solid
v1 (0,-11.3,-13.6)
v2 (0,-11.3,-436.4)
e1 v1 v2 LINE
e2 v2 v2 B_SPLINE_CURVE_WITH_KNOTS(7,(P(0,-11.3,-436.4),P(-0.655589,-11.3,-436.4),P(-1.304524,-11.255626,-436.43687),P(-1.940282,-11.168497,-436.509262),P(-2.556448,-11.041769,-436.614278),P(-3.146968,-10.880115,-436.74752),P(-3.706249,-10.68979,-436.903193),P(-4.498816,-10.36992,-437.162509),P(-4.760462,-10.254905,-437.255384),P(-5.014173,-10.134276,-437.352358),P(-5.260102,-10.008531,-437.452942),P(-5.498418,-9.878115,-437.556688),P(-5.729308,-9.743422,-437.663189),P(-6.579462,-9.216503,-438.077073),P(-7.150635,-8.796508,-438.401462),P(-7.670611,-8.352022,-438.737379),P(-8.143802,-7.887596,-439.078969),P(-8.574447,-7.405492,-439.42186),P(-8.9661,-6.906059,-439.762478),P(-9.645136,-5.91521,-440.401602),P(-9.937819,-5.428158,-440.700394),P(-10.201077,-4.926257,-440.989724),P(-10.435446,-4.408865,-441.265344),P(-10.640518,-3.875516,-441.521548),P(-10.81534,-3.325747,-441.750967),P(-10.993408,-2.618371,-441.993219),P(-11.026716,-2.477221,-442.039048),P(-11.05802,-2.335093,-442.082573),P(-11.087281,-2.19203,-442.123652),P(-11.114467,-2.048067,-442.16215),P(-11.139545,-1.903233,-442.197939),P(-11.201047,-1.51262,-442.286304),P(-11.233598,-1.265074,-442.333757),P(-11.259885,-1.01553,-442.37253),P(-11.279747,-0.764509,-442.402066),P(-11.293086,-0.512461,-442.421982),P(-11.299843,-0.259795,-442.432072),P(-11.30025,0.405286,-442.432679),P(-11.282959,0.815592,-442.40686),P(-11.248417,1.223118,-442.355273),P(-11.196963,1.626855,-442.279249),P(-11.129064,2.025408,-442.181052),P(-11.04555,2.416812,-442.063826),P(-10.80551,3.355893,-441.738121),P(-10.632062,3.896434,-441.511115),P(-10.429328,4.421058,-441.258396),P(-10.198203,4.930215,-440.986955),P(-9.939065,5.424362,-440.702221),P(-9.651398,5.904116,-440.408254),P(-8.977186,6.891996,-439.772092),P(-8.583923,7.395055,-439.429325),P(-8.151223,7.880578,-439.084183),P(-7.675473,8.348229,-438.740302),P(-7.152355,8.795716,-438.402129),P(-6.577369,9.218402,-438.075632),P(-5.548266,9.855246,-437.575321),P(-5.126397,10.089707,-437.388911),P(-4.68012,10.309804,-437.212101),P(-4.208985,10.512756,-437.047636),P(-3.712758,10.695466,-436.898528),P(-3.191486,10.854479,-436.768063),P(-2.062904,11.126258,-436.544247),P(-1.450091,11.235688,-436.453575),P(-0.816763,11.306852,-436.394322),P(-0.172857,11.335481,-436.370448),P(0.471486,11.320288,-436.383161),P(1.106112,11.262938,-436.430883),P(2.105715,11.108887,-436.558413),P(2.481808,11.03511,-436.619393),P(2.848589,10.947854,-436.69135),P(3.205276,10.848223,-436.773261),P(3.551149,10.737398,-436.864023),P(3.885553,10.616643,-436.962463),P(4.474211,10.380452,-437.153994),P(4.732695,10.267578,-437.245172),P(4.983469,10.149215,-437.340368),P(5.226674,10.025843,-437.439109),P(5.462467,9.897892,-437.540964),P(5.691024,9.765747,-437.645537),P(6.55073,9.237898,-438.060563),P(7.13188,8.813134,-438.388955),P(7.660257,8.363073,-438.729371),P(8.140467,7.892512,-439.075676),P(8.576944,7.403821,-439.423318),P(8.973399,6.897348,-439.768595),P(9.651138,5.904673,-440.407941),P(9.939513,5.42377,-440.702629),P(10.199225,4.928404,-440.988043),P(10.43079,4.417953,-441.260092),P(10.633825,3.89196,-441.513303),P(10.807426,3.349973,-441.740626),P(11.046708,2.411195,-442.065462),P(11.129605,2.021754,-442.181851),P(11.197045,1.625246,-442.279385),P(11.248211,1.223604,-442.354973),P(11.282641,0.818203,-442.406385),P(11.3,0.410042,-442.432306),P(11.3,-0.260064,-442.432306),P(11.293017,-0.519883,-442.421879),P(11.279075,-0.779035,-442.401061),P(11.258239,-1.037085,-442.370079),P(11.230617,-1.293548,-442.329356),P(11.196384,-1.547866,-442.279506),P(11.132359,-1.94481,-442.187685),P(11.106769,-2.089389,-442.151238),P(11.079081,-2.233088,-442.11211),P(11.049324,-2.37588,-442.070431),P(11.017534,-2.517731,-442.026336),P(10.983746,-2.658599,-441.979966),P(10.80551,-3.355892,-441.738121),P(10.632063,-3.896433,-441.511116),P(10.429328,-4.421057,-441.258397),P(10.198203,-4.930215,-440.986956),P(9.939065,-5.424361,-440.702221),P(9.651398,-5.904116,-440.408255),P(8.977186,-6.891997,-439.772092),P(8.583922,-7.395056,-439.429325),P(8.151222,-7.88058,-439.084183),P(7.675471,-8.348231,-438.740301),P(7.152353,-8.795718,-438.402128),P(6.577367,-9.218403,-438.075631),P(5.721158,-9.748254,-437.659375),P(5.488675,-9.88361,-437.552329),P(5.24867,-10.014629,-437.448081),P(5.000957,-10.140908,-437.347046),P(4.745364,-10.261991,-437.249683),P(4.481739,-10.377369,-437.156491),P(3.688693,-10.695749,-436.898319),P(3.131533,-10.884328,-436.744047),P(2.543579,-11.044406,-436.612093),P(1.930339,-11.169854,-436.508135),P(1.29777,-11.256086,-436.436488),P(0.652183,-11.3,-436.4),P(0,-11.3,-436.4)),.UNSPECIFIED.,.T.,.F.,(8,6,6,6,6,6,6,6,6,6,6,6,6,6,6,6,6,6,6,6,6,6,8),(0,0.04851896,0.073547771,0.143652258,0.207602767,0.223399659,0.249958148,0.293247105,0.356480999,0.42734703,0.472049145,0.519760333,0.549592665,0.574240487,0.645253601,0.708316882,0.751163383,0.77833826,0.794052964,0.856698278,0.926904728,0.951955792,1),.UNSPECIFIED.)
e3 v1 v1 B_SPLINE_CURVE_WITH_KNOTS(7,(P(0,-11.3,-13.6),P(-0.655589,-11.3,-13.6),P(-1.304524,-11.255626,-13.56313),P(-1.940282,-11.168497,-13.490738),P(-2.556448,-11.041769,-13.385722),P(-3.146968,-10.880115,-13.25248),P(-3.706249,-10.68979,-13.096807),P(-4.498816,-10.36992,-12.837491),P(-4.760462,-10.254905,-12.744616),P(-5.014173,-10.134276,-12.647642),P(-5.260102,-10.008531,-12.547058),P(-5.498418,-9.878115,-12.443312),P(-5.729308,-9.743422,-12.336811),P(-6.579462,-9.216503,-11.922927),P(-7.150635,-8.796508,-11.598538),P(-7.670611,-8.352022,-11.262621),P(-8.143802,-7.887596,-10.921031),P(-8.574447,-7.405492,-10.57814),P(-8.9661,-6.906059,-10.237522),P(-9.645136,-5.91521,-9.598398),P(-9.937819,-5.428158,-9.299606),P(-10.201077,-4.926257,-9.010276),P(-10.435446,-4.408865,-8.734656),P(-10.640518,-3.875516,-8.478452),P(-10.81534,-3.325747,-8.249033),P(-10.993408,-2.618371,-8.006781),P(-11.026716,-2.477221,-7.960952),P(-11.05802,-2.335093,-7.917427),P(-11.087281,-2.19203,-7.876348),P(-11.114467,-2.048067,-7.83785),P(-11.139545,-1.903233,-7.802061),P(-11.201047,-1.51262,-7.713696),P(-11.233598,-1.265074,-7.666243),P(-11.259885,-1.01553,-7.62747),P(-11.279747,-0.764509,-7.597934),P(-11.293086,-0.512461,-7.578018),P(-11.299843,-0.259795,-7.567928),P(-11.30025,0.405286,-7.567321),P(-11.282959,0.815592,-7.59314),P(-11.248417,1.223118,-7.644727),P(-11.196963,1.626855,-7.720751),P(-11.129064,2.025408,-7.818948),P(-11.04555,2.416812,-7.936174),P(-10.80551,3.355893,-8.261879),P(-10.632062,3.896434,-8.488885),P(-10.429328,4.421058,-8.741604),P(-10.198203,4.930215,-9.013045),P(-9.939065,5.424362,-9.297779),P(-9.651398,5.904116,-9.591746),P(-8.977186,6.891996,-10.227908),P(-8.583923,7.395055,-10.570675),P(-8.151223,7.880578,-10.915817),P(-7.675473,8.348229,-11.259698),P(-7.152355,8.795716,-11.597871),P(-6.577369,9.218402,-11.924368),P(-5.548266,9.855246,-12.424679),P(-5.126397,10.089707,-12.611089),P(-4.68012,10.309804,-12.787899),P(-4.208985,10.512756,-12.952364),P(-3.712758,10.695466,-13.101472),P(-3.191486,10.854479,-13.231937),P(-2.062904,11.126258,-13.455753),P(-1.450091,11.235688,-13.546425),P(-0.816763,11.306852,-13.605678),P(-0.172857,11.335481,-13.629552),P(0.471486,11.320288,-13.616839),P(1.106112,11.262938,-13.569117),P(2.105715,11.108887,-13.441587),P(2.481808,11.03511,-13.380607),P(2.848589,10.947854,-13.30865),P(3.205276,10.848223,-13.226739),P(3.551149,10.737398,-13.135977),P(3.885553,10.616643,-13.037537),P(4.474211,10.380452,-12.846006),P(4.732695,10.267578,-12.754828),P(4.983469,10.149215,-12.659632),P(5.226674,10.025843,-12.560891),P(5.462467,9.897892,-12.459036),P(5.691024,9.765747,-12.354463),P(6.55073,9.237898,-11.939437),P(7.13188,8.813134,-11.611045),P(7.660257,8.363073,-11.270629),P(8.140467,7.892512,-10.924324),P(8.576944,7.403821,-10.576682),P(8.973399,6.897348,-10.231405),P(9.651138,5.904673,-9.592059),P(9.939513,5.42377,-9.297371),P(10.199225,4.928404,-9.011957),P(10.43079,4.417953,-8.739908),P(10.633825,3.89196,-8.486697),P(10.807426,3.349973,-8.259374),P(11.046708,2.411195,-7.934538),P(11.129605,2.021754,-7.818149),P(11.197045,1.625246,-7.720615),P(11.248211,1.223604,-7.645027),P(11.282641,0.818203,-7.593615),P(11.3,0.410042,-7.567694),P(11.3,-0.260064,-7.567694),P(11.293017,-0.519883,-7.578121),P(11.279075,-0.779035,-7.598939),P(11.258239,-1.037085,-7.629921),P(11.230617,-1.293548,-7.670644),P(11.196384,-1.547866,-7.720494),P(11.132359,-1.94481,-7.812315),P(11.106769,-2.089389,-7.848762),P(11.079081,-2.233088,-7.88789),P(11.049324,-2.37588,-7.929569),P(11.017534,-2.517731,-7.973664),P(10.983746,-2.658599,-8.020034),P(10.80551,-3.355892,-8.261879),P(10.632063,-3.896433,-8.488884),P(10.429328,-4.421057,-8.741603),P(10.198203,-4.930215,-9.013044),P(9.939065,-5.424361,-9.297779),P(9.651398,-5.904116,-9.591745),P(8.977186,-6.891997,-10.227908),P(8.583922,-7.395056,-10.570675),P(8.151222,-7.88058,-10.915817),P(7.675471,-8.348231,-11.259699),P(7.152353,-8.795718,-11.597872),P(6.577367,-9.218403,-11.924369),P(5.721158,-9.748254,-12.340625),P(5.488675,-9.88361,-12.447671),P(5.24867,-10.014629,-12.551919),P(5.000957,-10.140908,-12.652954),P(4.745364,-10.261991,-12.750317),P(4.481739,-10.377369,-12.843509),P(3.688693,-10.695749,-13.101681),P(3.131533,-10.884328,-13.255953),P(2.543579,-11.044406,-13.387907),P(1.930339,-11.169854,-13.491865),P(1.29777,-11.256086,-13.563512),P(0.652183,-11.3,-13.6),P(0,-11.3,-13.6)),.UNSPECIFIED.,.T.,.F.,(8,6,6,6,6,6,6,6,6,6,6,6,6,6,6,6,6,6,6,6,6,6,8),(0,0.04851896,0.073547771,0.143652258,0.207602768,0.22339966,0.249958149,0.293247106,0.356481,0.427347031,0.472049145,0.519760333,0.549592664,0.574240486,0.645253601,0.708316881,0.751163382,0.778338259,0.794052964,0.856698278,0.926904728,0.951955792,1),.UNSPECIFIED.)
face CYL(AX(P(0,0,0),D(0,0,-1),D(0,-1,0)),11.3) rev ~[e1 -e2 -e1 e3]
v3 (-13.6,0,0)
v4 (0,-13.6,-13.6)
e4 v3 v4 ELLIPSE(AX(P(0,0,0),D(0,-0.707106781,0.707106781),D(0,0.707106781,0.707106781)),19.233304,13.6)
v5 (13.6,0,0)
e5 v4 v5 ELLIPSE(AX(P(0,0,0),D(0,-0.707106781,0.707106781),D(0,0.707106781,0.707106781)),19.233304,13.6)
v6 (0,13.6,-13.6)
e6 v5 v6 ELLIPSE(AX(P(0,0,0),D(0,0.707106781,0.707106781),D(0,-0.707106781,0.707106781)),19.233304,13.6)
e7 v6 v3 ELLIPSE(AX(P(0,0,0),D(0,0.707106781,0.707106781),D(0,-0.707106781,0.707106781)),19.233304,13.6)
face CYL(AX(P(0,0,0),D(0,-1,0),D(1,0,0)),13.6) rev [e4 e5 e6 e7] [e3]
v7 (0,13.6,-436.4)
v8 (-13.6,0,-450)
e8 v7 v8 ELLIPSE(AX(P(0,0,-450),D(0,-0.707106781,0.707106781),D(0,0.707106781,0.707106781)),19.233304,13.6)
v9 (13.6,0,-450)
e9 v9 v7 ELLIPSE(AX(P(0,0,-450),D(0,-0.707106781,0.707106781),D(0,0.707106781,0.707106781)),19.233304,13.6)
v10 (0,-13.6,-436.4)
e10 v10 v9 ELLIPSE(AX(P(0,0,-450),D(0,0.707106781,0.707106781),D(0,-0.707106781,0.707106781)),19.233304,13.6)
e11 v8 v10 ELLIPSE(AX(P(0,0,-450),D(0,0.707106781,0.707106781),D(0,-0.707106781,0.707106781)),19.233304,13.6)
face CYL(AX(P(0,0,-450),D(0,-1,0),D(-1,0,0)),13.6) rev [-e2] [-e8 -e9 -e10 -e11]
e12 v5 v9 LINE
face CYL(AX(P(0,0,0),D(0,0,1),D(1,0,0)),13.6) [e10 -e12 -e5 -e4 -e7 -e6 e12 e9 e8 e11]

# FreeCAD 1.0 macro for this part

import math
import FreeCAD as App
import Part
import Sketcher

doc = App.newDocument("Part")
body = doc.addObject("PartDesign::Body", "Body")

sketch1 = body.newObject("Sketcher::SketchObject", "Sketch")
sketch1.AttachmentSupport = (doc.getObject("XY_Plane"), [""])
sketch1.MapMode = "FlatFace"
sketch1.addGeometry(Part.Circle(App.Vector(0, 0, 0), App.Vector(0, 0, 1), 14), False)
sketch1.addConstraint([
    Sketcher.Constraint("Coincident", 0, 3, -1, 1),
    Sketcher.Constraint("Diameter", 0, 27.2),
])
pad1 = body.newObject("PartDesign::Pad", "Pad")
pad1.Profile = sketch1
pad1.Length = 450
pad1.Reversed = True

sketch2 = body.newObject("Sketcher::SketchObject", "Sketch001")
sketch2.AttachmentSupport = (doc.getObject("XY_Plane"), [""])
sketch2.MapMode = "FlatFace"
sketch2.addGeometry(Part.Circle(App.Vector(0, 0, 0), App.Vector(0, 0, 1), 11), False)
sketch2.addConstraint([
    Sketcher.Constraint("Coincident", 0, 3, -1, 1),
    Sketcher.Constraint("Diameter", 0, 22.6),
])
doc.recompute()
hole = body.newObject("PartDesign::Hole", "Hole")
hole.Profile = sketch2
hole.ThreadType = "None"
hole.Diameter = 22.6
hole.DepthType = "ThroughAll"

sketch3 = body.newObject("Sketcher::SketchObject", "Sketch002")
sketch3.AttachmentSupport = (doc.getObject("XZ_Plane"), [""])
sketch3.MapMode = "FlatFace"
sketch3.addGeometry([
    Part.LineSegment(App.Vector(-14, 0, 0), App.Vector(14, 0, 0)),
    Part.ArcOfCircle(Part.Circle(App.Vector(0, 0, 0), App.Vector(0, 0, 1), 14), math.radians(180), math.radians(360)),
], False)
sketch3.addConstraint([
    Sketcher.Constraint("Coincident", 0, 1, 1, 1),
    Sketcher.Constraint("Coincident", 1, 2, 0, 2),
    Sketcher.Constraint("Horizontal", 0),
    Sketcher.Constraint("Coincident", 1, 3, -1, 1),
    Sketcher.Constraint("PointOnObject", 0, 1, -1),
    Sketcher.Constraint("Radius", 1, 13.6),
])
pocket1 = body.newObject("PartDesign::Pocket", "Pocket")
pocket1.Profile = sketch3
pocket1.Length = 27.2
pocket1.Midplane = True

sketch4 = body.newObject("Sketcher::SketchObject", "Sketch003")
sketch4.AttachmentSupport = (doc.getObject("XZ_Plane"), [""])
sketch4.MapMode = "FlatFace"
sketch4.addGeometry([
    Part.ArcOfCircle(Part.Circle(App.Vector(0, -450, 0), App.Vector(0, 0, 1), 14), math.radians(0), math.radians(180)),
    Part.LineSegment(App.Vector(14, -450, 0), App.Vector(-14, -450, 0)),
], False)
sketch4.addConstraint([
    Sketcher.Constraint("Coincident", 0, 1, 1, 1),
    Sketcher.Constraint("Coincident", 1, 2, 0, 2),
    Sketcher.Constraint("Horizontal", 1),
    Sketcher.Constraint("PointOnObject", 0, 3, -2),
    Sketcher.Constraint("Radius", 0, 13.6),
    Sketcher.Constraint("DistanceY", 0, 3, -1, 1, 450.0),
    Sketcher.Constraint("DistanceY", 0, 1, -1, 1, 450.0),
])
pocket2 = body.newObject("PartDesign::Pocket", "Pocket001")
pocket2.Profile = sketch4
pocket2.Length = 27.2
pocket2.Midplane = True

doc.recompute()
